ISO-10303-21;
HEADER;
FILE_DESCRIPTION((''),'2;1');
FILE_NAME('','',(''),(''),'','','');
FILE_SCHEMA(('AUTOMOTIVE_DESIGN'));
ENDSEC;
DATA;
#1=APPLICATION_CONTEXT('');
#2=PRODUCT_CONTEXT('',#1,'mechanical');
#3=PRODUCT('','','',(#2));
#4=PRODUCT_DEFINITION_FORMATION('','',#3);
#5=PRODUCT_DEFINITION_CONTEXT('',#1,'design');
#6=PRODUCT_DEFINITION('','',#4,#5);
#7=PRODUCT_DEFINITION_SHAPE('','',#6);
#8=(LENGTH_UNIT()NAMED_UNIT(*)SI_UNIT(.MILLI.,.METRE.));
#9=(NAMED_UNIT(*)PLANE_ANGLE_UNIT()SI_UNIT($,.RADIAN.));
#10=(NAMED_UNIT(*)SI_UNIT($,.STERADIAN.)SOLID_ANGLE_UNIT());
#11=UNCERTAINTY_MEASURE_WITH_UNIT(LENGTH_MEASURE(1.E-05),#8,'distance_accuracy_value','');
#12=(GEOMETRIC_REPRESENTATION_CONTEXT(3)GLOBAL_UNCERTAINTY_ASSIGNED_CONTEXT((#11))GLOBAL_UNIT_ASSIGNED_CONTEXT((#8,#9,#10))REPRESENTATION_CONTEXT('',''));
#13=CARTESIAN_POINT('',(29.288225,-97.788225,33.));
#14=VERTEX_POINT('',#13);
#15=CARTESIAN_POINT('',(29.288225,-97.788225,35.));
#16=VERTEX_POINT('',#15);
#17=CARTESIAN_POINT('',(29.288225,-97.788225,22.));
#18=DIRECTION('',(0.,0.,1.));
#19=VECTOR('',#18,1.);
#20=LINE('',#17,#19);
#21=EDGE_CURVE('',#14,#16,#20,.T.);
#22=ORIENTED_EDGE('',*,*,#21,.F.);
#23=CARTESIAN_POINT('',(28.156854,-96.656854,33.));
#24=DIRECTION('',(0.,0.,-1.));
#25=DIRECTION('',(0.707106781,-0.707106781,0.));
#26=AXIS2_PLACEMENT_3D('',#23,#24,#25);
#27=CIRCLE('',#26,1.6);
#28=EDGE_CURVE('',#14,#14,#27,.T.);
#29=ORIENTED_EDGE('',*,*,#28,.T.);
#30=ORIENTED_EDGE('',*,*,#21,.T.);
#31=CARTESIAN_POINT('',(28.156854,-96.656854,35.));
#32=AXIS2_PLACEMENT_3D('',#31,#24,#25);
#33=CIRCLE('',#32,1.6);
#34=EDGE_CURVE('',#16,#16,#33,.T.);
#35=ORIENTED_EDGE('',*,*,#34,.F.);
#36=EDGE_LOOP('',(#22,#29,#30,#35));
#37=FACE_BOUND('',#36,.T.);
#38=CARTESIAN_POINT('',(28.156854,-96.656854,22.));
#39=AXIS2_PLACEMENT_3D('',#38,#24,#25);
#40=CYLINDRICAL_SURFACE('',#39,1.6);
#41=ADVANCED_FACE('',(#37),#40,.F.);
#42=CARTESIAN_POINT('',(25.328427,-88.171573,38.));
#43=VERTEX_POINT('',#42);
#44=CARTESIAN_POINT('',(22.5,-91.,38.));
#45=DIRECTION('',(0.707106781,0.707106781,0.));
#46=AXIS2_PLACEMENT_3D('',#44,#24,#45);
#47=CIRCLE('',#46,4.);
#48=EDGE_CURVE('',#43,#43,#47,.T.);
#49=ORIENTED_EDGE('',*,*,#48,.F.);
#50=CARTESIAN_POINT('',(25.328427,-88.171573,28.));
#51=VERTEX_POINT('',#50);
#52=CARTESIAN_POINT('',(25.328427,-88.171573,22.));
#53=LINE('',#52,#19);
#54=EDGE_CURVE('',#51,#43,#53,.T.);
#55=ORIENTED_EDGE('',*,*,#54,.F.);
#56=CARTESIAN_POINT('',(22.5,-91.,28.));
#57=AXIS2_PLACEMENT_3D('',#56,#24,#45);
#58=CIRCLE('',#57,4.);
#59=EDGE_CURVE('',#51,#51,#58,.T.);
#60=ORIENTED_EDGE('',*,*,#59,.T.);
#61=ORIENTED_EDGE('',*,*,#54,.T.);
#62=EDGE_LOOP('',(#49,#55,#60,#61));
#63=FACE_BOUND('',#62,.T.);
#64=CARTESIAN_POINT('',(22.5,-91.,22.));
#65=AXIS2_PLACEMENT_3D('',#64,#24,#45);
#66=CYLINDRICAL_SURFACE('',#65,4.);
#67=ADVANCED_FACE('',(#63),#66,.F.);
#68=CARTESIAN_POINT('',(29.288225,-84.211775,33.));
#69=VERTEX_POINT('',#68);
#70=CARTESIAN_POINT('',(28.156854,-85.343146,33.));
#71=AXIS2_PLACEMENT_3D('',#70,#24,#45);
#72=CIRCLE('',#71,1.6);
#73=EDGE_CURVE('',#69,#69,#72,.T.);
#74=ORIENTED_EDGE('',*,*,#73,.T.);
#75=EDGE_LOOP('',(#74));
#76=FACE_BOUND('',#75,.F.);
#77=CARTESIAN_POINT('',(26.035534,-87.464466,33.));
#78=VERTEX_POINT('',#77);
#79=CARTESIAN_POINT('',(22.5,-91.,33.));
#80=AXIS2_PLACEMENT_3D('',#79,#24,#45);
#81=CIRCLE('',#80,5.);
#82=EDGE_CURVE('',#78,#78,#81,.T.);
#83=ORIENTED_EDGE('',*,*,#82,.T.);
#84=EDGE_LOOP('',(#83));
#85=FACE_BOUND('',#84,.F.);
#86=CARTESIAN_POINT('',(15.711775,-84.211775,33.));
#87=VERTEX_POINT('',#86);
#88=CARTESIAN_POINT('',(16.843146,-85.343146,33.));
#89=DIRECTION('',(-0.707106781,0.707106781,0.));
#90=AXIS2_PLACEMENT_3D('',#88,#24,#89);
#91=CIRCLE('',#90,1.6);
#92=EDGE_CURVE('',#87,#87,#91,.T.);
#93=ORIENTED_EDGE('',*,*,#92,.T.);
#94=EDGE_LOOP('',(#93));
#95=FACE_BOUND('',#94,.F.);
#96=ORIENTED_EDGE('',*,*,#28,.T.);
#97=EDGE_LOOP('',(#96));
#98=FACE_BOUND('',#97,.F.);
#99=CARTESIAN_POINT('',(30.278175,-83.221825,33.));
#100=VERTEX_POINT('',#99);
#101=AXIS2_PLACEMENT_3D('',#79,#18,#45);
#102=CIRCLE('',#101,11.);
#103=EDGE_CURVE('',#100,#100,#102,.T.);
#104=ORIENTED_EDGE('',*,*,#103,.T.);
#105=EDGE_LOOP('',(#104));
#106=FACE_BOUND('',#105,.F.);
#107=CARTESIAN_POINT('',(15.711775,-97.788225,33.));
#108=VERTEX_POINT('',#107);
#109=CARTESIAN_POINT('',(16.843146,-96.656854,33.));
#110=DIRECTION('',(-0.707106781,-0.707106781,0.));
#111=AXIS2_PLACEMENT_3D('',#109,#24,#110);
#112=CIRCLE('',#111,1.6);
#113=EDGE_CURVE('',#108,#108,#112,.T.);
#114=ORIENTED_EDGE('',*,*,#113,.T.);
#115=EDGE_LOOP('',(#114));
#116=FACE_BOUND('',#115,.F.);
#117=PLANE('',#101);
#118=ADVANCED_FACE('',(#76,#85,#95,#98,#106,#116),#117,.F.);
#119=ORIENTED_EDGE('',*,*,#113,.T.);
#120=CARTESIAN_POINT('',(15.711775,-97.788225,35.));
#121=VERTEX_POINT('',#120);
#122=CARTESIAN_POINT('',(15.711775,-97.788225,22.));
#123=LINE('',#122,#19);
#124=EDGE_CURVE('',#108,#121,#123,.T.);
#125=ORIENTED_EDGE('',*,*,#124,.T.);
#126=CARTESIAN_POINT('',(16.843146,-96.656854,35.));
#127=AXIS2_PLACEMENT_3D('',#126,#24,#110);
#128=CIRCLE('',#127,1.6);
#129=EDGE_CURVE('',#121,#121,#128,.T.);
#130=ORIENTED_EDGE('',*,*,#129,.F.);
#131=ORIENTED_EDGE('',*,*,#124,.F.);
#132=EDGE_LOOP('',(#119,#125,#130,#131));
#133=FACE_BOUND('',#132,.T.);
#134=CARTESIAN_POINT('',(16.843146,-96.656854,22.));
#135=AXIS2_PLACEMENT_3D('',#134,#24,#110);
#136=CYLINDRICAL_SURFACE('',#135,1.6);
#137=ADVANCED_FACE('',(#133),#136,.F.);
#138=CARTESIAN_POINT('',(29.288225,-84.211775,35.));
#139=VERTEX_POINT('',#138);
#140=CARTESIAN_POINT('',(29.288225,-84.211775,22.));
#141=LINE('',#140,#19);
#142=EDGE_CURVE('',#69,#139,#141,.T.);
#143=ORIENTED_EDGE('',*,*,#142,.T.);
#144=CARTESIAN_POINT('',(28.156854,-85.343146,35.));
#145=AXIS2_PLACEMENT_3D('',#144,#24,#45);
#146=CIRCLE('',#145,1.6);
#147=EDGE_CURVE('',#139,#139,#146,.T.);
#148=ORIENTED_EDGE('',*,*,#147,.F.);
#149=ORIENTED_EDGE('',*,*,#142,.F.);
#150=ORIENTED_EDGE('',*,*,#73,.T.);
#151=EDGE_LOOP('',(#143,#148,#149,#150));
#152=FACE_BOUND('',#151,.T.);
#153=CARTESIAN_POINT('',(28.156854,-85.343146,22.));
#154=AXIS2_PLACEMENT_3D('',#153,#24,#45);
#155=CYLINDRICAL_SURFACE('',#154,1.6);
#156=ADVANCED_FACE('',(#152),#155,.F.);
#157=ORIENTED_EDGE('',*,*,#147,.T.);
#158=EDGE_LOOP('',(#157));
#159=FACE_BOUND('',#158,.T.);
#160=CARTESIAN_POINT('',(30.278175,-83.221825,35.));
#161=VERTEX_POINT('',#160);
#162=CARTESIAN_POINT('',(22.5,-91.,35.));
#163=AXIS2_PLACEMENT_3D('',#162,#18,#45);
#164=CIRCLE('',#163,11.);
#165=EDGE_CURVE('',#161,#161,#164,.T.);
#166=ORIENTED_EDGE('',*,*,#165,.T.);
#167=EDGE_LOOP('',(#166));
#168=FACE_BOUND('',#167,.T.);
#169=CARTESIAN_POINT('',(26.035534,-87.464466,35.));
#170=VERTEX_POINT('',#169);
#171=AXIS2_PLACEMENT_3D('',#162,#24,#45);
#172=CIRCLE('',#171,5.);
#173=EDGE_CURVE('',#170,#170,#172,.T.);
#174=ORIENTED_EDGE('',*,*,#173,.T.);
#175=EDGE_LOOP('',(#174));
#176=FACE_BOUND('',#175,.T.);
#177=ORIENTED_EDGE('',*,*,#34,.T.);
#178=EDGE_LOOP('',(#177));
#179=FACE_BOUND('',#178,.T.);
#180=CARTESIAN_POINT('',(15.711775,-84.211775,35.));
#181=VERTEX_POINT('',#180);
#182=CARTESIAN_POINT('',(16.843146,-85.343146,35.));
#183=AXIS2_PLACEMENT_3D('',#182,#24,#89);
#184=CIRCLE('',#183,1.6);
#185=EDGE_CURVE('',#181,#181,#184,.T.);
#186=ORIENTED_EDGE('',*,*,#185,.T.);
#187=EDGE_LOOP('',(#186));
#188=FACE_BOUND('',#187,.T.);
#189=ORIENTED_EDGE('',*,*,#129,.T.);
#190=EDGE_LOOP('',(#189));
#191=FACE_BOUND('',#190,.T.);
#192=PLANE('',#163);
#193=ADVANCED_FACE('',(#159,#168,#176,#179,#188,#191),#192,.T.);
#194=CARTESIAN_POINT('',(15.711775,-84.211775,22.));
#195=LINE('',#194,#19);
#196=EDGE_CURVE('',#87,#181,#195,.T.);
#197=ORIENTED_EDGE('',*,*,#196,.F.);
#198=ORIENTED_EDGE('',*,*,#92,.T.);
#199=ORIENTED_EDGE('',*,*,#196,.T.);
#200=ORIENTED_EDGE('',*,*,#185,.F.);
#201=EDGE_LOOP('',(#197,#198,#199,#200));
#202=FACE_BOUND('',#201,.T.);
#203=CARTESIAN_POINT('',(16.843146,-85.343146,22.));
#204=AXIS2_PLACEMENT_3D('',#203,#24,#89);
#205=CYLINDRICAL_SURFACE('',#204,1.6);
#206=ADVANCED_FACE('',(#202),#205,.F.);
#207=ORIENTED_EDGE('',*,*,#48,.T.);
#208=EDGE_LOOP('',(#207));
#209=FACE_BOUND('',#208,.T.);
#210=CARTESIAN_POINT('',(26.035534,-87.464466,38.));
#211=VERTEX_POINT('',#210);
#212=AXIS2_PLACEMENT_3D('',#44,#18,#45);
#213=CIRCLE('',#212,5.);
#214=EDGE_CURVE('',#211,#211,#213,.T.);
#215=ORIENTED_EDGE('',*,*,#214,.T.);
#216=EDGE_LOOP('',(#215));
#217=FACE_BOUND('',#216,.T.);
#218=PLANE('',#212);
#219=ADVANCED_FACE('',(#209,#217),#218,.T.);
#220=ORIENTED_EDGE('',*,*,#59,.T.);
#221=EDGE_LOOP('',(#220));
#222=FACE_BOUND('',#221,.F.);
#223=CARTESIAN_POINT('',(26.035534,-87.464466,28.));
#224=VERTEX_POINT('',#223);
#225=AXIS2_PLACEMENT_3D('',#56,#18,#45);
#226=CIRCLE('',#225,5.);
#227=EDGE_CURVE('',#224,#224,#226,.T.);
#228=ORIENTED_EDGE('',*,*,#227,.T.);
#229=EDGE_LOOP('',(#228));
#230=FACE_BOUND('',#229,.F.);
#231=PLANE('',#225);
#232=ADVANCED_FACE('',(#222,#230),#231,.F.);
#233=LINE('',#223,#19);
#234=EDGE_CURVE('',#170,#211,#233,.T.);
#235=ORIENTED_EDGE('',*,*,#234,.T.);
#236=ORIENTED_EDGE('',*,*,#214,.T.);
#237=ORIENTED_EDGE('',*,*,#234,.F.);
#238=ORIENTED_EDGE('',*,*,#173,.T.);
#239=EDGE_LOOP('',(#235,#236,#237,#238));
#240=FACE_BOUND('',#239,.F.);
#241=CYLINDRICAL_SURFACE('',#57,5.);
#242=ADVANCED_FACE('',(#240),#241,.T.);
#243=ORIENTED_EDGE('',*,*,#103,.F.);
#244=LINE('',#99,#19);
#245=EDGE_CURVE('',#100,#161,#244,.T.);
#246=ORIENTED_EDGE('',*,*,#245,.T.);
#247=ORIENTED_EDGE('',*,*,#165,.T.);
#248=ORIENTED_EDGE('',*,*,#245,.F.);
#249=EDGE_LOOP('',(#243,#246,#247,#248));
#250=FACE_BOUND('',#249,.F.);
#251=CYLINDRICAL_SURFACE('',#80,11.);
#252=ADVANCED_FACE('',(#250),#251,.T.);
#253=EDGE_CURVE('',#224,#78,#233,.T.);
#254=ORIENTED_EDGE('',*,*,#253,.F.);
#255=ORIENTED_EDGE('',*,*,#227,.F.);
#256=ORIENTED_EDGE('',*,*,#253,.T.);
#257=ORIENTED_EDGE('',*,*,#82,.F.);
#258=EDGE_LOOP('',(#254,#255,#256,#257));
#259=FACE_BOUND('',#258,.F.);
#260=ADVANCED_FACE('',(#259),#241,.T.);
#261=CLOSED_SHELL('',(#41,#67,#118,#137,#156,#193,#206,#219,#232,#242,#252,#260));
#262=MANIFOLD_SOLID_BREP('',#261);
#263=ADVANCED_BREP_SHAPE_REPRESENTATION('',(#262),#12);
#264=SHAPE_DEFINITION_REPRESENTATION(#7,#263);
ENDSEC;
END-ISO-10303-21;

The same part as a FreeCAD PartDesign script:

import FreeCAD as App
import Part
import Sketcher
Q = App.Units.Quantity

doc = App.newDocument("Part")
body = doc.addObject("PartDesign::Body", "Body")

sketch1 = body.newObject("Sketcher::SketchObject", "Sketch")
sketch1.AttachmentSupport = (doc.getObject("XY_Plane"), [""])
sketch1.MapMode = "FlatFace"
sketch1.addGeometry(Part.Circle(App.Vector(8, 0, 0), App.Vector(0, 0, 1), 1.6), False)
sketch1.addConstraint([
    Sketcher.Constraint("PointOnObject", 0, 3, -1),
    Sketcher.Constraint("Diameter", 0, Q("3.2 mm")),
    Sketcher.Constraint("DistanceX", -1, 1, 0, 3, Q("8 mm")),
])
pad1 = body.newObject("PartDesign::Pad", "Pad")
pad1.Profile = sketch1
pad1.Length = 23
body2 = doc.addObject("PartDesign::Body", "Body001")
body2.AllowCompound = True
doc.recompute()

body2.BaseFeature = body
doc.recompute()

body3 = doc.addObject("PartDesign::Body", "Body002")
body3.BaseFeature = body
body3.Placement = App.Placement(App.Vector(0, 0, 0), App.Rotation(App.Vector(0, 0, 1), 90))
boolean = body2.newObject("PartDesign::Boolean", "Boolean")
boolean.Type = "Fuse"
boolean.addObjects([body3])
doc.recompute()

body4 = doc.addObject("PartDesign::Body", "Body003")
body4.BaseFeature = body
body4.Placement = App.Placement(App.Vector(0, 0, 0), App.Rotation(App.Vector(0, 0, 1), 180))
boolean2 = body2.newObject("PartDesign::Boolean", "Boolean001")
boolean2.Type = "Fuse"
boolean2.addObjects([body4])
doc.recompute()

body.Placement = App.Placement(App.Vector(0, 0, 0), App.Rotation(App.Vector(0, 0, 1), 270))
boolean3 = body2.newObject("PartDesign::Boolean", "Boolean002")
boolean3.Type = "Fuse"
boolean3.addObjects([body])
body5 = doc.addObject("PartDesign::Body", "Body004")

sketch2 = body5.newObject("Sketcher::SketchObject", "Sketch001")
sketch2.AttachmentSupport = (doc.getObject("XY_Plane004"), [""])
sketch2.MapMode = "FlatFace"
sketch2.addGeometry(Part.Circle(App.Vector(0, 0, 0), App.Vector(0, 0, 1), 4), False)
sketch2.addConstraint([
    Sketcher.Constraint("Coincident", 0, 3, -1, 1),
    Sketcher.Constraint("Diameter", 0, Q("8 mm")),
])
pad2 = body5.newObject("PartDesign::Pad", "Pad001")
pad2.Profile = sketch2
pad2.Length = 350
body6 = doc.addObject("PartDesign::Body", "Body005")

sketch3 = body6.newObject("Sketcher::SketchObject", "Sketch002")
sketch3.AttachmentSupport = (doc.getObject("XY_Plane005"), [""])
sketch3.MapMode = "FlatFace"
sketch3.addGeometry(Part.Circle(App.Vector(0, 0, 0), App.Vector(0, 0, 1), 5), False)
sketch3.addConstraint([
    Sketcher.Constraint("Coincident", 0, 3, -1, 1),
    Sketcher.Constraint("Diameter", 0, Q("10 mm")),
])
pad3 = body6.newObject("PartDesign::Pad", "Pad002")
pad3.Profile = sketch3
pad3.Length = 10
body7 = doc.addObject("PartDesign::Body", "Body006")

sketch4 = body7.newObject("Sketcher::SketchObject", "Sketch003")
sketch4.AttachmentSupport = (doc.getObject("XY_Plane006"), [""])
sketch4.MapMode = "FlatFace"
sketch4.AttachmentOffset = App.Placement(App.Vector(0, 0, 5), App.Rotation())
sketch4.addGeometry(Part.Circle(App.Vector(0, 0, 0), App.Vector(0, 0, 1), 11), False)
sketch4.addConstraint([
    Sketcher.Constraint("Coincident", 0, 3, -1, 1),
    Sketcher.Constraint("Diameter", 0, Q("22 mm")),
])
pad4 = body7.newObject("PartDesign::Pad", "Pad003")
pad4.Profile = sketch4
pad4.Length = 2
doc.recompute()

boolean4 = body7.newObject("PartDesign::Boolean", "Boolean003")
boolean4.Type = "Fuse"
boolean4.addObjects([body6])
body8 = doc.addObject("PartDesign::Body", "Body007")
doc.recompute()

body7.Placement = App.Placement(App.Vector(0, 0, 6), App.Rotation(App.Vector(0, 0, 1), 0))
boolean5 = body8.newObject("PartDesign::Boolean", "Boolean004")
boolean5.Type = "Fuse"
boolean5.addObjects([body7])
doc.recompute()

boolean6 = body8.newObject("PartDesign::Boolean", "Boolean005")
boolean6.Type = "Cut"
boolean6.addObjects([body5])
doc.recompute()

boolean7 = body8.newObject("PartDesign::Boolean", "Boolean006")
boolean7.Type = "Cut"
boolean7.addObjects([body2])
body9 = doc.addObject("PartDesign::Body", "Body008")
doc.recompute()

body8.Placement = App.Placement(App.Vector(22.5, -91, 22), App.Rotation(App.Vector(0, 0, 1), 45))
boolean8 = body9.newObject("PartDesign::Boolean", "Boolean007")
boolean8.Type = "Fuse"
boolean8.addObjects([body8])

doc.recompute()
